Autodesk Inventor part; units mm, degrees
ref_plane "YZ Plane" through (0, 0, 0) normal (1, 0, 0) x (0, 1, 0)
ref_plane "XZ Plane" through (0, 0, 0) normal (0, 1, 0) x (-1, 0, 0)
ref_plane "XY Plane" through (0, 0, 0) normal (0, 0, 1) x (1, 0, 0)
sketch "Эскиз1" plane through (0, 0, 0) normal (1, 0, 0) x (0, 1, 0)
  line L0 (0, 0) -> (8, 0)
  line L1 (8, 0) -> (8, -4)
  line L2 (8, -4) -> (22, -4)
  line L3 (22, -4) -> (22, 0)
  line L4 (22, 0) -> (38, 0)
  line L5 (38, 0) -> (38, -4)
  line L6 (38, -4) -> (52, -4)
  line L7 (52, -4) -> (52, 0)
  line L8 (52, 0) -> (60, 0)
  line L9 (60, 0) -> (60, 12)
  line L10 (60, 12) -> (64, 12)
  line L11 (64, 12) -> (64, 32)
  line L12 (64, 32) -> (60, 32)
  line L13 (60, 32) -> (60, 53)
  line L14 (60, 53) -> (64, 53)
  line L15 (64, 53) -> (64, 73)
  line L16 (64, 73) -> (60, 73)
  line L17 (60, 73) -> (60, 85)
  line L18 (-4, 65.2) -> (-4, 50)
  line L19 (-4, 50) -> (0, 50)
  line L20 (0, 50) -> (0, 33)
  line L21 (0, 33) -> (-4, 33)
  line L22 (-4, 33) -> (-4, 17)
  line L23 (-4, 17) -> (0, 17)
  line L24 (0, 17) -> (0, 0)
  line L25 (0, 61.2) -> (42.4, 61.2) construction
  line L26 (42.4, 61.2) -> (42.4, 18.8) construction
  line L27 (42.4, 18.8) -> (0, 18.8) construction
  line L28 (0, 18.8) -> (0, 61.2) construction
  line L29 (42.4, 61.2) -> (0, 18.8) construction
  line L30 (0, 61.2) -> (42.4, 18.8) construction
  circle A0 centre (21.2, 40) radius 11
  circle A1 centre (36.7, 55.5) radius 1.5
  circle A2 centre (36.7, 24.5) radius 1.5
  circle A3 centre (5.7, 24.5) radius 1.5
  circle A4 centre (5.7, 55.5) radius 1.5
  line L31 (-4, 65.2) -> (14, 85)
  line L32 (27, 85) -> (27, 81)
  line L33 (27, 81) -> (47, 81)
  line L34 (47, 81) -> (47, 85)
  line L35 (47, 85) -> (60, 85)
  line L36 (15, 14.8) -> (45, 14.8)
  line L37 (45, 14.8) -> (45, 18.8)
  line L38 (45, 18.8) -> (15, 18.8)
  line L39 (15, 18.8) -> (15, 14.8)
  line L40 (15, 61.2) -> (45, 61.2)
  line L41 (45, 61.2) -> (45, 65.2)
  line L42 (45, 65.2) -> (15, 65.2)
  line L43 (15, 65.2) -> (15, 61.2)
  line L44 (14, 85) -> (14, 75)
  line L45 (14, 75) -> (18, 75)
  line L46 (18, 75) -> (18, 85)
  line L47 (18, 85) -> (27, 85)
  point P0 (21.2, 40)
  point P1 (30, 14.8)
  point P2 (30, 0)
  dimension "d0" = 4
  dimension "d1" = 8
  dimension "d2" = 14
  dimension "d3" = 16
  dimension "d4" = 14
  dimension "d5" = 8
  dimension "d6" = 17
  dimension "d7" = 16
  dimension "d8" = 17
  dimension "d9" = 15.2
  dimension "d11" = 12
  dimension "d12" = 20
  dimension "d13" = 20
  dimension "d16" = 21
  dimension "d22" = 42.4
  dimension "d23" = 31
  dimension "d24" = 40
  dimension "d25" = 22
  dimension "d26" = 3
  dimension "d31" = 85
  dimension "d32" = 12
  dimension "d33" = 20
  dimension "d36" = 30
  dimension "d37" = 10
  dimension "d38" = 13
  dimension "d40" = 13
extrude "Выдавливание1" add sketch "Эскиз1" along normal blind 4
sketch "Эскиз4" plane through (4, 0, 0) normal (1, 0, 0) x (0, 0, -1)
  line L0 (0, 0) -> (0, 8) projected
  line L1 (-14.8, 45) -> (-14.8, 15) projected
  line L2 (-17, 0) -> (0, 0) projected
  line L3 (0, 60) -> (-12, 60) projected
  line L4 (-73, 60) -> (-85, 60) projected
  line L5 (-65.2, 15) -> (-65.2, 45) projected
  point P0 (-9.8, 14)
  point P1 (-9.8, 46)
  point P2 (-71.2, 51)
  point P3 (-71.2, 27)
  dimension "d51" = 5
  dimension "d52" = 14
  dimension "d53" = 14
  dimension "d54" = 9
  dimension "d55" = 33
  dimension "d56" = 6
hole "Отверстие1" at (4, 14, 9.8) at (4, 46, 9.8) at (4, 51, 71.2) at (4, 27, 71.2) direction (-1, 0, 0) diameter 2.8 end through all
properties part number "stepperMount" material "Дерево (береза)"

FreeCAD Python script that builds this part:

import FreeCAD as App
import Part
import Sketcher

V = App.Vector
Q = App.Units.Quantity

doc = App.newDocument("Part")
body = doc.addObject("PartDesign::Body", "Body")

sketch1 = doc.addObject("Sketcher::SketchObject", "Sketch")
body.addObject(sketch1)
sketch1.AttachmentSupport = (doc.YZ_Plane, [""])
sketch1.MapMode = "FlatFace"
sketch1.addGeometry(Part.LineSegment(V(0, 17, 0), V(0, 0, 0)), False)
sketch1.addGeometry(Part.LineSegment(V(0, 0, 0), V(8, 0, 0)), False)
sketch1.addGeometry(Part.LineSegment(V(8, 0, 0), V(8, -4, 0)), False)
sketch1.addGeometry(Part.LineSegment(V(8, -4, 0), V(22, -4, 0)), False)
sketch1.addGeometry(Part.LineSegment(V(22, -4, 0), V(22, 0, 0)), False)
sketch1.addGeometry(Part.LineSegment(V(22, 0, 0), V(38, 0, 0)), False)
sketch1.addGeometry(Part.LineSegment(V(38, 0, 0), V(38, -4, 0)), False)
sketch1.addGeometry(Part.LineSegment(V(38, -4, 0), V(52, -4, 0)), False)
sketch1.addGeometry(Part.LineSegment(V(52, -4, 0), V(52, 0, 0)), False)
sketch1.addGeometry(Part.LineSegment(V(52, 0, 0), V(60, 0, 0)), False)
sketch1.addGeometry(Part.LineSegment(V(60, 0, 0), V(60, 12, 0)), False)
sketch1.addGeometry(Part.LineSegment(V(60, 12, 0), V(64, 12, 0)), False)
sketch1.addGeometry(Part.LineSegment(V(64, 12, 0), V(64, 32, 0)), False)
sketch1.addGeometry(Part.LineSegment(V(64, 32, 0), V(60, 32, 0)), False)
sketch1.addGeometry(Part.LineSegment(V(60, 32, 0), V(60, 53, 0)), False)
sketch1.addGeometry(Part.LineSegment(V(60, 53, 0), V(64, 53, 0)), False)
sketch1.addGeometry(Part.LineSegment(V(64, 53, 0), V(64, 73, 0)), False)
sketch1.addGeometry(Part.LineSegment(V(64, 73, 0), V(60, 73, 0)), False)
sketch1.addGeometry(Part.LineSegment(V(60, 73, 0), V(60, 85, 0)), False)
sketch1.addGeometry(Part.LineSegment(V(60, 85, 0), V(47, 85, 0)), False)
sketch1.addGeometry(Part.LineSegment(V(47, 85, 0), V(47, 81, 0)), False)
sketch1.addGeometry(Part.LineSegment(V(47, 81, 0), V(27, 81, 0)), False)
sketch1.addGeometry(Part.LineSegment(V(27, 81, 0), V(27, 85, 0)), False)
sketch1.addGeometry(Part.LineSegment(V(27, 85, 0), V(18, 85, 0)), False)
sketch1.addGeometry(Part.LineSegment(V(18, 85, 0), V(18, 75, 0)), False)
sketch1.addGeometry(Part.LineSegment(V(18, 75, 0), V(14, 75, 0)), False)
sketch1.addGeometry(Part.LineSegment(V(14, 75, 0), V(14, 85, 0)), False)
sketch1.addGeometry(Part.LineSegment(V(14, 85, 0), V(-4, 65.2, 0)), False)
sketch1.addGeometry(Part.LineSegment(V(-4, 65.2, 0), V(-4, 50, 0)), False)
sketch1.addGeometry(Part.LineSegment(V(-4, 50, 0), V(0, 50, 0)), False)
sketch1.addGeometry(Part.LineSegment(V(0, 50, 0), V(0, 33, 0)), False)
sketch1.addGeometry(Part.LineSegment(V(0, 33, 0), V(-4, 33, 0)), False)
sketch1.addGeometry(Part.LineSegment(V(-4, 33, 0), V(-4, 17, 0)), False)
sketch1.addGeometry(Part.LineSegment(V(-4, 17, 0), V(0, 17, 0)), False)
sketch1.addGeometry(Part.Circle(V(5.7, 24.5, 0), V(0, 0, 1), 1.5), False)
sketch1.addGeometry(Part.Circle(V(21.2, 40, 0), V(0, 0, 1), 11), False)
sketch1.addGeometry(Part.LineSegment(V(45, 14.8, 0), V(15, 14.8, 0)), False)
sketch1.addGeometry(Part.LineSegment(V(15, 14.8, 0), V(15, 18.8, 0)), False)
sketch1.addGeometry(Part.LineSegment(V(15, 18.8, 0), V(45, 18.8, 0)), False)
sketch1.addGeometry(Part.LineSegment(V(45, 18.8, 0), V(45, 14.8, 0)), False)
sketch1.addGeometry(Part.Circle(V(36.7, 24.5, 0), V(0, 0, 1), 1.5), False)
sketch1.addGeometry(Part.Circle(V(5.7, 55.5, 0), V(0, 0, 1), 1.5), False)
sketch1.addGeometry(Part.Circle(V(36.7, 55.5, 0), V(0, 0, 1), 1.5), False)
sketch1.addGeometry(Part.LineSegment(V(45, 61.2, 0), V(15, 61.2, 0)), False)
sketch1.addGeometry(Part.LineSegment(V(15, 61.2, 0), V(15, 65.2, 0)), False)
sketch1.addGeometry(Part.LineSegment(V(15, 65.2, 0), V(45, 65.2, 0)), False)
sketch1.addGeometry(Part.LineSegment(V(45, 65.2, 0), V(45, 61.2, 0)), False)
sketch1.addConstraint(Sketcher.Constraint("Coincident", 0, 2, 1, 1))
sketch1.addConstraint(Sketcher.Constraint("Coincident", 1, 2, 2, 1))
sketch1.addConstraint(Sketcher.Constraint("Coincident", 2, 2, 3, 1))
sketch1.addConstraint(Sketcher.Constraint("Coincident", 3, 2, 4, 1))
sketch1.addConstraint(Sketcher.Constraint("Coincident", 4, 2, 5, 1))
sketch1.addConstraint(Sketcher.Constraint("Coincident", 5, 2, 6, 1))
sketch1.addConstraint(Sketcher.Constraint("Coincident", 6, 2, 7, 1))
sketch1.addConstraint(Sketcher.Constraint("Coincident", 7, 2, 8, 1))
sketch1.addConstraint(Sketcher.Constraint("Coincident", 8, 2, 9, 1))
sketch1.addConstraint(Sketcher.Constraint("Coincident", 9, 2, 10, 1))
sketch1.addConstraint(Sketcher.Constraint("Coincident", 10, 2, 11, 1))
sketch1.addConstraint(Sketcher.Constraint("Coincident", 11, 2, 12, 1))
sketch1.addConstraint(Sketcher.Constraint("Coincident", 12, 2, 13, 1))
sketch1.addConstraint(Sketcher.Constraint("Coincident", 13, 2, 14, 1))
sketch1.addConstraint(Sketcher.Constraint("Coincident", 14, 2, 15, 1))
sketch1.addConstraint(Sketcher.Constraint("Coincident", 15, 2, 16, 1))
sketch1.addConstraint(Sketcher.Constraint("Coincident", 16, 2, 17, 1))
sketch1.addConstraint(Sketcher.Constraint("Coincident", 17, 2, 18, 1))
sketch1.addConstraint(Sketcher.Constraint("Coincident", 18, 2, 19, 1))
sketch1.addConstraint(Sketcher.Constraint("Coincident", 19, 2, 20, 1))
sketch1.addConstraint(Sketcher.Constraint("Coincident", 20, 2, 21, 1))
sketch1.addConstraint(Sketcher.Constraint("Coincident", 21, 2, 22, 1))
sketch1.addConstraint(Sketcher.Constraint("Coincident", 22, 2, 23, 1))
sketch1.addConstraint(Sketcher.Constraint("Coincident", 23, 2, 24, 1))
sketch1.addConstraint(Sketcher.Constraint("Coincident", 24, 2, 25, 1))
sketch1.addConstraint(Sketcher.Constraint("Coincident", 25, 2, 26, 1))
sketch1.addConstraint(Sketcher.Constraint("Coincident", 26, 2, 27, 1))
sketch1.addConstraint(Sketcher.Constraint("Coincident", 27, 2, 28, 1))
sketch1.addConstraint(Sketcher.Constraint("Coincident", 28, 2, 29, 1))
sketch1.addConstraint(Sketcher.Constraint("Coincident", 29, 2, 30, 1))
sketch1.addConstraint(Sketcher.Constraint("Coincident", 30, 2, 31, 1))
sketch1.addConstraint(Sketcher.Constraint("Coincident", 31, 2, 32, 1))
sketch1.addConstraint(Sketcher.Constraint("Coincident", 32, 2, 33, 1))
sketch1.addConstraint(Sketcher.Constraint("Coincident", 33, 2, 0, 1))
sketch1.addConstraint(Sketcher.Constraint("Coincident", 36, 2, 37, 1))
sketch1.addConstraint(Sketcher.Constraint("Coincident", 37, 2, 38, 1))
sketch1.addConstraint(Sketcher.Constraint("Coincident", 38, 2, 39, 1))
sketch1.addConstraint(Sketcher.Constraint("Coincident", 39, 2, 36, 1))
sketch1.addConstraint(Sketcher.Constraint("Coincident", 43, 2, 44, 1))
sketch1.addConstraint(Sketcher.Constraint("Coincident", 44, 2, 45, 1))
sketch1.addConstraint(Sketcher.Constraint("Coincident", 45, 2, 46, 1))
sketch1.addConstraint(Sketcher.Constraint("Coincident", 46, 2, 43, 1))
sketch1.addConstraint(Sketcher.Constraint("Vertical", 0))
sketch1.addConstraint(Sketcher.Constraint("Horizontal", 1))
sketch1.addConstraint(Sketcher.Constraint("Vertical", 2))
sketch1.addConstraint(Sketcher.Constraint("Horizontal", 3))
sketch1.addConstraint(Sketcher.Constraint("Vertical", 4))
sketch1.addConstraint(Sketcher.Constraint("Horizontal", 5))
sketch1.addConstraint(Sketcher.Constraint("Vertical", 6))
sketch1.addConstraint(Sketcher.Constraint("Horizontal", 7))
sketch1.addConstraint(Sketcher.Constraint("Vertical", 8))
sketch1.addConstraint(Sketcher.Constraint("Horizontal", 9))
sketch1.addConstraint(Sketcher.Constraint("Vertical", 10))
sketch1.addConstraint(Sketcher.Constraint("Horizontal", 11))
sketch1.addConstraint(Sketcher.Constraint("Vertical", 12))
sketch1.addConstraint(Sketcher.Constraint("Horizontal", 13))
sketch1.addConstraint(Sketcher.Constraint("Vertical", 14))
sketch1.addConstraint(Sketcher.Constraint("Horizontal", 15))
sketch1.addConstraint(Sketcher.Constraint("Vertical", 16))
sketch1.addConstraint(Sketcher.Constraint("Horizontal", 17))
sketch1.addConstraint(Sketcher.Constraint("Vertical", 18))
sketch1.addConstraint(Sketcher.Constraint("Horizontal", 19))
sketch1.addConstraint(Sketcher.Constraint("Vertical", 20))
sketch1.addConstraint(Sketcher.Constraint("Horizontal", 21))
sketch1.addConstraint(Sketcher.Constraint("Vertical", 22))
sketch1.addConstraint(Sketcher.Constraint("Horizontal", 23))
sketch1.addConstraint(Sketcher.Constraint("Vertical", 24))
sketch1.addConstraint(Sketcher.Constraint("Horizontal", 25))
sketch1.addConstraint(Sketcher.Constraint("Vertical", 26))
sketch1.addConstraint(Sketcher.Constraint("Vertical", 28))
sketch1.addConstraint(Sketcher.Constraint("Horizontal", 29))
sketch1.addConstraint(Sketcher.Constraint("Vertical", 30))
sketch1.addConstraint(Sketcher.Constraint("Horizontal", 31))
sketch1.addConstraint(Sketcher.Constraint("Vertical", 32))
sketch1.addConstraint(Sketcher.Constraint("Horizontal", 33))
sketch1.addConstraint(Sketcher.Constraint("Horizontal", 36))
sketch1.addConstraint(Sketcher.Constraint("Vertical", 37))
sketch1.addConstraint(Sketcher.Constraint("Horizontal", 38))
sketch1.addConstraint(Sketcher.Constraint("Vertical", 39))
sketch1.addConstraint(Sketcher.Constraint("Horizontal", 43))
sketch1.addConstraint(Sketcher.Constraint("Vertical", 44))
sketch1.addConstraint(Sketcher.Constraint("Horizontal", 45))
sketch1.addConstraint(Sketcher.Constraint("Vertical", 46))
sketch1.addConstraint(Sketcher.Constraint("Coincident", 0, 2, -1, 1))
sketch1.addConstraint(Sketcher.Constraint("Equal", 34, 40))
sketch1.addConstraint(Sketcher.Constraint("Equal", 40, 41))
sketch1.addConstraint(Sketcher.Constraint("Equal", 41, 42))
sketch1.addConstraint(Sketcher.Constraint("PointOnObject", 4, 2, -1))
sketch1.addConstraint(Sketcher.Constraint("PointOnObject", 8, 2, -1))
sketch1.addConstraint(Sketcher.Constraint("PointOnObject", 29, 2, -2))
sketch1.addConstraint(Sketcher.Constraint("Horizontal", 34, 3, 40, 3))
sketch1.addConstraint(Sketcher.Constraint("Horizontal", 41, 3, 42, 3))
sketch1.addConstraint(Sketcher.Constraint("Horizontal", 3, 2, 6, 2))
sketch1.addConstraint(Sketcher.Constraint("Horizontal", 19, 2, 22, 2))
sketch1.addConstraint(Sketcher.Constraint("Horizontal", 23, 2, 26, 2))
sketch1.addConstraint(Sketcher.Constraint("Horizontal", 27, 2, 44, 2))
sketch1.addConstraint(Sketcher.Constraint("Vertical", 34, 3, 41, 3))
sketch1.addConstraint(Sketcher.Constraint("Vertical", 40, 3, 42, 3))
sketch1.addConstraint(Sketcher.Constraint("Vertical", 10, 2, 13, 2))
sketch1.addConstraint(Sketcher.Constraint("Vertical", 12, 2, 15, 2))
sketch1.addConstraint(Sketcher.Constraint("Vertical", 14, 2, 17, 2))
sketch1.addConstraint(Sketcher.Constraint("Vertical", 28, 2, 31, 2))
sketch1.addConstraint(Sketcher.Constraint("Vertical", 37, 2, 43, 2))
sketch1.addConstraint(Sketcher.Constraint("Vertical", 39, 2, 45, 2))
sketch1.addConstraint(Sketcher.Constraint("Equal", 3, 7))
sketch1.addConstraint(Sketcher.Constraint("Equal", 1, 9))
sketch1.addConstraint(Sketcher.Constraint("Equal", 17, 25))
sketch1.addConstraint(Sketcher.Constraint("Equal", 25, 29))
sketch1.addConstraint(Sketcher.Constraint("Equal", 33, 2))
sketch1.addConstraint(Sketcher.Constraint("Equal", 21, 12))
sketch1.addConstraint(Sketcher.Constraint("Equal", 12, 16))
sketch1.addConstraint(Sketcher.Constraint("Equal", 10, 18))
sketch1.addConstraint(Sketcher.Constraint("Equal", 8, 20))
sketch1.addConstraint(Sketcher.Constraint("Equal", 0, 30))
sketch1.addConstraint(Sketcher.Constraint("Equal", 5, 32))
sketch1.addConstraint(Sketcher.Constraint("Equal", 22, 37))
sketch1.addConstraint(Sketcher.Constraint("Equal", 39, 44))
sketch1.addConstraint(Sketcher.Constraint("Diameter", 34, Q("3 mm")))
sketch1.addConstraint(Sketcher.Constraint("Diameter", 35, Q("22 mm")))
sketch1.addConstraint(Sketcher.Constraint("DistanceX", 1, 1, 1, 2, Q("8 mm")))
sketch1.addConstraint(Sketcher.Constraint("DistanceX", 3, 1, 3, 2, Q("14 mm")))
sketch1.addConstraint(Sketcher.Constraint("DistanceX", 5, 1, 5, 2, Q("16 mm")))
sketch1.addConstraint(Sketcher.Constraint("DistanceX", 11, 1, 11, 2, Q("4 mm")))
sketch1.addConstraint(Sketcher.Constraint("DistanceX", 19, 2, 19, 1, Q("13 mm")))
sketch1.addConstraint(Sketcher.Constraint("DistanceX", 21, 2, 21, 1, Q("20 mm")))
sketch1.addConstraint(Sketcher.Constraint("DistanceX", 36, 2, 36, 1, Q("30 mm")))
sketch1.addConstraint(Sketcher.Constraint("DistanceY", 0, 2, 0, 1, Q("17 mm")))
sketch1.addConstraint(Sketcher.Constraint("DistanceY", 10, 1, 10, 2, Q("12 mm")))
sketch1.addConstraint(Sketcher.Constraint("DistanceY", 14, 1, 14, 2, Q("21 mm")))
sketch1.addConstraint(Sketcher.Constraint("DistanceY", 24, 2, 24, 1, Q("10 mm")))
sketch1.addConstraint(Sketcher.Constraint("DistanceY", 28, 2, 28, 1, Q("15.2 mm")))
sketch1.addConstraint(Sketcher.Constraint("DistanceY", -1, 1, 35, 3, Q("40 mm")))
sketch1.addConstraint(Sketcher.Constraint("DistanceX", -1, 1, 25, 2, Q("14 mm")))
sketch1.addConstraint(Sketcher.Constraint("DistanceX", 34, 3, 40, 3, Q("31 mm")))
sketch1.addConstraint(Sketcher.Constraint("DistanceY", 34, 3, 41, 3, Q("31 mm")))
sketch1.addConstraint(Sketcher.Constraint("DistanceX", 43, 2, 24, 2, Q("3 mm")))
sketch1.addConstraint(Sketcher.Constraint("DistanceX", -1, 1, 34, 3, Q("5.7 mm")))
sketch1.addConstraint(Sketcher.Constraint("DistanceY", -1, 1, 34, 3, Q("24.5 mm")))
sketch1.addConstraint(Sketcher.Constraint("DistanceX", -1, 1, 35, 3, Q("21.2 mm")))
sketch1.addConstraint(Sketcher.Constraint("DistanceY", -1, 1, 36, 2, Q("14.8 mm")))
pad1 = doc.addObject("PartDesign::Pad", "Pad")
body.addObject(pad1)
pad1.Profile = sketch1
pad1.Length = 4

sketch2 = doc.addObject("Sketcher::SketchObject", "Sketch001")
body.addObject(sketch2)
sketch2.AttachmentSupport = (doc.YZ_Plane, [""])
sketch2.MapMode = "FlatFace"
sketch2.AttachmentOffset = App.Placement(V(0, 0, 4), App.Rotation())
sketch2.addGeometry(Part.Circle(V(14, 9.8, 0), V(0, 0, 1), 1.4), False)
sketch2.addGeometry(Part.Circle(V(46, 9.8, 0), V(0, 0, 1), 1.4), False)
sketch2.addGeometry(Part.Circle(V(51, 71.2, 0), V(0, 0, 1), 1.4), False)
sketch2.addGeometry(Part.Circle(V(27, 71.2, 0), V(0, 0, 1), 1.4), False)
sketch2.addConstraint(Sketcher.Constraint("Equal", 0, 1))
sketch2.addConstraint(Sketcher.Constraint("Equal", 1, 2))
sketch2.addConstraint(Sketcher.Constraint("Equal", 2, 3))
sketch2.addConstraint(Sketcher.Constraint("Horizontal", 0, 3, 1, 3))
sketch2.addConstraint(Sketcher.Constraint("Horizontal", 2, 3, 3, 3))
sketch2.addConstraint(Sketcher.Constraint("Diameter", 0, Q("2.8 mm")))
sketch2.addConstraint(Sketcher.Constraint("DistanceX", -1, 1, 0, 3, Q("14 mm")))
sketch2.addConstraint(Sketcher.Constraint("DistanceX", -1, 1, 1, 3, Q("46 mm")))
sketch2.addConstraint(Sketcher.Constraint("DistanceX", -1, 1, 2, 3, Q("51 mm")))
sketch2.addConstraint(Sketcher.Constraint("DistanceX", -1, 1, 3, 3, Q("27 mm")))
sketch2.addConstraint(Sketcher.Constraint("DistanceY", -1, 1, 0, 3, Q("9.8 mm")))
sketch2.addConstraint(Sketcher.Constraint("DistanceY", -1, 1, 2, 3, Q("71.2 mm")))
doc.recompute()
hole = doc.addObject("PartDesign::Hole", "Hole")
body.addObject(hole)
hole.Profile = sketch2
hole.ThreadType = "None"
hole.Diameter = 2.8
hole.DepthType = "ThroughAll"

doc.recompute()
